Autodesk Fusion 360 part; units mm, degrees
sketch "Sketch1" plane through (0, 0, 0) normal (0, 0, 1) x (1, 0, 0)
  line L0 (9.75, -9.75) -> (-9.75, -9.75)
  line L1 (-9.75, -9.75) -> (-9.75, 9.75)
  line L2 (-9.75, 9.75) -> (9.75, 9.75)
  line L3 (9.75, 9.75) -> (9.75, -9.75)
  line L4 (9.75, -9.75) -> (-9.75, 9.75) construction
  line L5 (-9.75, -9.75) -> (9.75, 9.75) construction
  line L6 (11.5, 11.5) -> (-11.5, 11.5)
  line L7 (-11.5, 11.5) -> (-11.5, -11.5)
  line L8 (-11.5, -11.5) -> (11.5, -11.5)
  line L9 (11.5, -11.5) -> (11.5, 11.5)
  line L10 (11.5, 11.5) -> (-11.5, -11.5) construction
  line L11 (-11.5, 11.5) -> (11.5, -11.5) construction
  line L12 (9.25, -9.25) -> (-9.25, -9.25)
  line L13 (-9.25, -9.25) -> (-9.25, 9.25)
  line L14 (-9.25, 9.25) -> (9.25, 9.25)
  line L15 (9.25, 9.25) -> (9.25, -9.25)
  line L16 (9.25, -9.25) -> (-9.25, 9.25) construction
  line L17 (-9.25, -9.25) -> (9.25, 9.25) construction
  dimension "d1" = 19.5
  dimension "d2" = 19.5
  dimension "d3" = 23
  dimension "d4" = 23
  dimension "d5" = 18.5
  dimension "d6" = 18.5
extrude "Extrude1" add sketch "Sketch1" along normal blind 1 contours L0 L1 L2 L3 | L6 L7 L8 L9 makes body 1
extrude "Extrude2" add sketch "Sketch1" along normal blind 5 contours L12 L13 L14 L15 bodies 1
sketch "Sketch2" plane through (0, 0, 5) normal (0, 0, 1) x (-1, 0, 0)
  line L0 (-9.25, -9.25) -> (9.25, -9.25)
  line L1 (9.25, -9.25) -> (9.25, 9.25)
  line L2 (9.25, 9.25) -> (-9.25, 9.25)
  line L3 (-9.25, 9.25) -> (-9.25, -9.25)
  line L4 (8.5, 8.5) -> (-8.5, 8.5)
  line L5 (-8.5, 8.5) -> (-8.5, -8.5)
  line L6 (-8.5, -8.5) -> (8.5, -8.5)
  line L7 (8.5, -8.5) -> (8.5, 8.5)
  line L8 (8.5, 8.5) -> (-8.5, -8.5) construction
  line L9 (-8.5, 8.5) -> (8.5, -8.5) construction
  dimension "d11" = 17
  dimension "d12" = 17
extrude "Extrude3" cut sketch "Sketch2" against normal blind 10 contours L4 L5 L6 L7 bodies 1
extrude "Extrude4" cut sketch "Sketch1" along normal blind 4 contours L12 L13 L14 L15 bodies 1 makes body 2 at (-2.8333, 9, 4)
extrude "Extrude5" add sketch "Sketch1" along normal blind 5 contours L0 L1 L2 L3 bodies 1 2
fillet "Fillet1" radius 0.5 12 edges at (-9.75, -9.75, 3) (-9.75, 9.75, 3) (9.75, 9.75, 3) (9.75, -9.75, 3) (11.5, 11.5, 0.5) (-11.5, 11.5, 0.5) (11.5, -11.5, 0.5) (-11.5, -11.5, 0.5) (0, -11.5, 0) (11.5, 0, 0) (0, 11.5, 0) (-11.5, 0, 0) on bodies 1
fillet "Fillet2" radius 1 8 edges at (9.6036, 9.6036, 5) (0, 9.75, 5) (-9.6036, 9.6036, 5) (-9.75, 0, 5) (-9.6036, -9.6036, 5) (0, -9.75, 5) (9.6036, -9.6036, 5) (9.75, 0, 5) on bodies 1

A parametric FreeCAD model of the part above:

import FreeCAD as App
import Part
import Sketcher
Q = App.Units.Quantity


def edges_at(feature, points):
    """Names of the edges that pass closest to the given points."""
    edges = feature.Shape.Edges
    near = lambda p: min(range(len(edges)), key=lambda i: edges[i].distToShape(Part.Vertex(*p))[0])
    return sorted({f"Edge{near(p) + 1}" for p in points})


def add_polygon(sketch, points):
    """Adds a closed chain of lines whose ends are joined by coincident constraints."""
    first, n = sketch.GeometryCount, len(points)
    for a, b in zip(points, points[1:] + points[:1]):
        sketch.addGeometry(Part.LineSegment(App.Vector(*a, 0), App.Vector(*b, 0)), False)
    for i in range(n):
        sketch.addConstraint(Sketcher.Constraint("Coincident", first + i, 2, first + (i + 1) % n, 1))

doc = App.newDocument("Part")
params = doc.addObject("Spreadsheet::Sheet", "Params")
for row, (alias, value) in enumerate([
    ("sketch1_width", "23 mm"),
    ("sketch1_width2", "18.5 mm"),
    ("pad1_length", "1 mm"),
    ("sketch2_width", "18.5 mm"),
    ("pad2_length", "5 mm"),
    ("sketch3_width", "17 mm"),
    ("pocket1_length", "10 mm"),
    ("sketch4_width", "18.5 mm"),
    ("pocket2_length", "4 mm"),
    ("sketch5_width", "19.5 mm"),
    ("sketch5_width2", "18.5 mm"),
    ("pad3_length", "5 mm"),
    ("fillet_radius", "0.5 mm"),
    ("fillet2_radius", "1 mm"),
], start=1):
    params.set(f"A{row}", alias)
    params.set(f"B{row}", "=" + value)
    params.setAlias(f"B{row}", alias)

body = doc.addObject("PartDesign::Body", "Body")
body.AllowCompound = True

sketch1 = body.newObject("Sketcher::SketchObject", "Sketch")
sketch1.AttachmentSupport = (doc.getObject("XY_Plane"), [""])
sketch1.MapMode = "FlatFace"
add_polygon(sketch1, [(11.5, -11.5), (11.5, 11.5), (-11.5, 11.5), (-11.5, -11.5)])
add_polygon(sketch1, [(9.25, 9.25), (9.25, -9.25), (-9.25, -9.25), (-9.25, 9.25)])
sketch1.addConstraint(Sketcher.Constraint("Vertical", 0))
sketch1.addConstraint(Sketcher.Constraint("Horizontal", 1))
sketch1.addConstraint(Sketcher.Constraint("Vertical", 2))
sketch1.addConstraint(Sketcher.Constraint("Horizontal", 3))
sketch1.addConstraint(Sketcher.Constraint("Vertical", 4))
sketch1.addConstraint(Sketcher.Constraint("Horizontal", 5))
sketch1.addConstraint(Sketcher.Constraint("Vertical", 6))
sketch1.addConstraint(Sketcher.Constraint("Horizontal", 7))
sketch1.addConstraint(Sketcher.Constraint("Symmetric", 0, 2, 2, 2, -1, 1))
sketch1.addConstraint(Sketcher.Constraint("Symmetric", 4, 2, 6, 2, -1, 1))
sketch1.addConstraint(Sketcher.Constraint("Equal", 3, 0))
sketch1.addConstraint(Sketcher.Constraint("Equal", 7, 4))
sketch1.addConstraint(Sketcher.Constraint("DistanceX", 1, 2, 1, 1, Q("23 mm")))
sketch1.addConstraint(Sketcher.Constraint("DistanceX", 5, 2, 5, 1, Q("18.5 mm")))
sketch1.setExpression("Constraints[20]", "Params.sketch1_width")
sketch1.setExpression("Constraints[21]", "Params.sketch1_width2")
pad1 = body.newObject("PartDesign::Pad", "Pad")
pad1.Profile = sketch1
pad1.setExpression("Length", "Params.pad1_length")

sketch2 = body.newObject("Sketcher::SketchObject", "Sketch001")
sketch2.AttachmentSupport = (doc.getObject("XY_Plane"), [""])
sketch2.MapMode = "FlatFace"
add_polygon(sketch2, [(-9.25, -9.25), (9.25, -9.25), (9.25, 9.25), (-9.25, 9.25)])
sketch2.addConstraint(Sketcher.Constraint("Horizontal", 0))
sketch2.addConstraint(Sketcher.Constraint("Vertical", 1))
sketch2.addConstraint(Sketcher.Constraint("Horizontal", 2))
sketch2.addConstraint(Sketcher.Constraint("Vertical", 3))
sketch2.addConstraint(Sketcher.Constraint("Symmetric", 0, 2, 2, 2, -1, 1))
sketch2.addConstraint(Sketcher.Constraint("Equal", 2, 1))
sketch2.addConstraint(Sketcher.Constraint("DistanceX", 0, 1, 0, 2, Q("18.5 mm")))
sketch2.setExpression("Constraints[10]", "Params.sketch2_width")
pad2 = body.newObject("PartDesign::Pad", "Pad001")
pad2.Profile = sketch2
pad2.setExpression("Length", "Params.pad2_length")

sketch3 = body.newObject("Sketcher::SketchObject", "Sketch002")
sketch3.AttachmentSupport = (doc.getObject("XY_Plane"), [""])
sketch3.MapMode = "FlatFace"
sketch3.AttachmentOffset = App.Placement(App.Vector(0, 0, 5), App.Rotation())
add_polygon(sketch3, [(-8.5, 8.5), (-8.5, -8.5), (8.5, -8.5), (8.5, 8.5)])
sketch3.addConstraint(Sketcher.Constraint("Vertical", 0))
sketch3.addConstraint(Sketcher.Constraint("Horizontal", 1))
sketch3.addConstraint(Sketcher.Constraint("Vertical", 2))
sketch3.addConstraint(Sketcher.Constraint("Horizontal", 3))
sketch3.addConstraint(Sketcher.Constraint("Symmetric", 0, 2, 2, 2, -1, 1))
sketch3.addConstraint(Sketcher.Constraint("Equal", 3, 0))
sketch3.addConstraint(Sketcher.Constraint("DistanceX", 1, 1, 1, 2, Q("17 mm")))
sketch3.setExpression("Constraints[10]", "Params.sketch3_width")
pocket1 = body.newObject("PartDesign::Pocket", "Pocket")
pocket1.Profile = sketch3
pocket1.setExpression("Length", "Params.pocket1_length")

sketch4 = body.newObject("Sketcher::SketchObject", "Sketch003")
sketch4.AttachmentSupport = (doc.getObject("XY_Plane"), [""])
sketch4.MapMode = "FlatFace"
add_polygon(sketch4, [(-9.25, -9.25), (9.25, -9.25), (9.25, 9.25), (-9.25, 9.25)])
sketch4.addConstraint(Sketcher.Constraint("Horizontal", 0))
sketch4.addConstraint(Sketcher.Constraint("Vertical", 1))
sketch4.addConstraint(Sketcher.Constraint("Horizontal", 2))
sketch4.addConstraint(Sketcher.Constraint("Vertical", 3))
sketch4.addConstraint(Sketcher.Constraint("Symmetric", 0, 2, 2, 2, -1, 1))
sketch4.addConstraint(Sketcher.Constraint("Equal", 2, 1))
sketch4.addConstraint(Sketcher.Constraint("DistanceX", 0, 1, 0, 2, Q("18.5 mm")))
sketch4.setExpression("Constraints[10]", "Params.sketch4_width")
pocket2 = body.newObject("PartDesign::Pocket", "Pocket001")
pocket2.Profile = sketch4
pocket2.setExpression("Length", "Params.pocket2_length")
pocket2.Reversed = True

sketch5 = body.newObject("Sketcher::SketchObject", "Sketch004")
sketch5.AttachmentSupport = (doc.getObject("XY_Plane"), [""])
sketch5.MapMode = "FlatFace"
add_polygon(sketch5, [(-9.75, -9.75), (9.75, -9.75), (9.75, 9.75), (-9.75, 9.75)])
add_polygon(sketch5, [(9.25, 9.25), (9.25, -9.25), (-9.25, -9.25), (-9.25, 9.25)])
sketch5.addConstraint(Sketcher.Constraint("Horizontal", 0))
sketch5.addConstraint(Sketcher.Constraint("Vertical", 1))
sketch5.addConstraint(Sketcher.Constraint("Horizontal", 2))
sketch5.addConstraint(Sketcher.Constraint("Vertical", 3))
sketch5.addConstraint(Sketcher.Constraint("Vertical", 4))
sketch5.addConstraint(Sketcher.Constraint("Horizontal", 5))
sketch5.addConstraint(Sketcher.Constraint("Vertical", 6))
sketch5.addConstraint(Sketcher.Constraint("Horizontal", 7))
sketch5.addConstraint(Sketcher.Constraint("Symmetric", 0, 2, 2, 2, -1, 1))
sketch5.addConstraint(Sketcher.Constraint("Symmetric", 4, 2, 6, 2, -1, 1))
sketch5.addConstraint(Sketcher.Constraint("Equal", 2, 1))
sketch5.addConstraint(Sketcher.Constraint("Equal", 7, 4))
sketch5.addConstraint(Sketcher.Constraint("DistanceX", 0, 1, 0, 2, Q("19.5 mm")))
sketch5.addConstraint(Sketcher.Constraint("DistanceX", 5, 2, 5, 1, Q("18.5 mm")))
sketch5.setExpression("Constraints[20]", "Params.sketch5_width")
sketch5.setExpression("Constraints[21]", "Params.sketch5_width2")
pad3 = body.newObject("PartDesign::Pad", "Pad002")
pad3.Profile = sketch5
pad3.setExpression("Length", "Params.pad3_length")
doc.recompute()

fillet = body.newObject("PartDesign::Fillet", "Fillet")
fillet.Base = (pad3, edges_at(pad3, [
    (-9.75, -9.75, 3),
    (-9.75, 9.75, 3),
    (9.75, 9.75, 3),
    (9.75, -9.75, 3),
    (11.5, 11.5, 0.5),
    (-11.5, 11.5, 0.5),
    (11.5, -11.5, 0.5),
    (-11.5, -11.5, 0.5),
    (0, -11.5, 0),
    (11.5, 0, 0),
    (0, 11.5, 0),
    (-11.5, 0, 0),
]))
fillet.setExpression("Radius", "Params.fillet_radius")
doc.recompute()

fillet2 = body.newObject("PartDesign::Fillet", "Fillet001")
fillet2.Base = (fillet, edges_at(fillet, [
    (9.604, 9.604, 5),
    (0, 9.75, 5),
    (-9.604, 9.604, 5),
    (-9.75, 0, 5),
    (-9.604, -9.604, 5),
    (0, -9.75, 5),
    (9.604, -9.604, 5),
    (9.75, 0, 5),
]))
fillet2.setExpression("Radius", "Params.fillet2_radius")

doc.recompute()
